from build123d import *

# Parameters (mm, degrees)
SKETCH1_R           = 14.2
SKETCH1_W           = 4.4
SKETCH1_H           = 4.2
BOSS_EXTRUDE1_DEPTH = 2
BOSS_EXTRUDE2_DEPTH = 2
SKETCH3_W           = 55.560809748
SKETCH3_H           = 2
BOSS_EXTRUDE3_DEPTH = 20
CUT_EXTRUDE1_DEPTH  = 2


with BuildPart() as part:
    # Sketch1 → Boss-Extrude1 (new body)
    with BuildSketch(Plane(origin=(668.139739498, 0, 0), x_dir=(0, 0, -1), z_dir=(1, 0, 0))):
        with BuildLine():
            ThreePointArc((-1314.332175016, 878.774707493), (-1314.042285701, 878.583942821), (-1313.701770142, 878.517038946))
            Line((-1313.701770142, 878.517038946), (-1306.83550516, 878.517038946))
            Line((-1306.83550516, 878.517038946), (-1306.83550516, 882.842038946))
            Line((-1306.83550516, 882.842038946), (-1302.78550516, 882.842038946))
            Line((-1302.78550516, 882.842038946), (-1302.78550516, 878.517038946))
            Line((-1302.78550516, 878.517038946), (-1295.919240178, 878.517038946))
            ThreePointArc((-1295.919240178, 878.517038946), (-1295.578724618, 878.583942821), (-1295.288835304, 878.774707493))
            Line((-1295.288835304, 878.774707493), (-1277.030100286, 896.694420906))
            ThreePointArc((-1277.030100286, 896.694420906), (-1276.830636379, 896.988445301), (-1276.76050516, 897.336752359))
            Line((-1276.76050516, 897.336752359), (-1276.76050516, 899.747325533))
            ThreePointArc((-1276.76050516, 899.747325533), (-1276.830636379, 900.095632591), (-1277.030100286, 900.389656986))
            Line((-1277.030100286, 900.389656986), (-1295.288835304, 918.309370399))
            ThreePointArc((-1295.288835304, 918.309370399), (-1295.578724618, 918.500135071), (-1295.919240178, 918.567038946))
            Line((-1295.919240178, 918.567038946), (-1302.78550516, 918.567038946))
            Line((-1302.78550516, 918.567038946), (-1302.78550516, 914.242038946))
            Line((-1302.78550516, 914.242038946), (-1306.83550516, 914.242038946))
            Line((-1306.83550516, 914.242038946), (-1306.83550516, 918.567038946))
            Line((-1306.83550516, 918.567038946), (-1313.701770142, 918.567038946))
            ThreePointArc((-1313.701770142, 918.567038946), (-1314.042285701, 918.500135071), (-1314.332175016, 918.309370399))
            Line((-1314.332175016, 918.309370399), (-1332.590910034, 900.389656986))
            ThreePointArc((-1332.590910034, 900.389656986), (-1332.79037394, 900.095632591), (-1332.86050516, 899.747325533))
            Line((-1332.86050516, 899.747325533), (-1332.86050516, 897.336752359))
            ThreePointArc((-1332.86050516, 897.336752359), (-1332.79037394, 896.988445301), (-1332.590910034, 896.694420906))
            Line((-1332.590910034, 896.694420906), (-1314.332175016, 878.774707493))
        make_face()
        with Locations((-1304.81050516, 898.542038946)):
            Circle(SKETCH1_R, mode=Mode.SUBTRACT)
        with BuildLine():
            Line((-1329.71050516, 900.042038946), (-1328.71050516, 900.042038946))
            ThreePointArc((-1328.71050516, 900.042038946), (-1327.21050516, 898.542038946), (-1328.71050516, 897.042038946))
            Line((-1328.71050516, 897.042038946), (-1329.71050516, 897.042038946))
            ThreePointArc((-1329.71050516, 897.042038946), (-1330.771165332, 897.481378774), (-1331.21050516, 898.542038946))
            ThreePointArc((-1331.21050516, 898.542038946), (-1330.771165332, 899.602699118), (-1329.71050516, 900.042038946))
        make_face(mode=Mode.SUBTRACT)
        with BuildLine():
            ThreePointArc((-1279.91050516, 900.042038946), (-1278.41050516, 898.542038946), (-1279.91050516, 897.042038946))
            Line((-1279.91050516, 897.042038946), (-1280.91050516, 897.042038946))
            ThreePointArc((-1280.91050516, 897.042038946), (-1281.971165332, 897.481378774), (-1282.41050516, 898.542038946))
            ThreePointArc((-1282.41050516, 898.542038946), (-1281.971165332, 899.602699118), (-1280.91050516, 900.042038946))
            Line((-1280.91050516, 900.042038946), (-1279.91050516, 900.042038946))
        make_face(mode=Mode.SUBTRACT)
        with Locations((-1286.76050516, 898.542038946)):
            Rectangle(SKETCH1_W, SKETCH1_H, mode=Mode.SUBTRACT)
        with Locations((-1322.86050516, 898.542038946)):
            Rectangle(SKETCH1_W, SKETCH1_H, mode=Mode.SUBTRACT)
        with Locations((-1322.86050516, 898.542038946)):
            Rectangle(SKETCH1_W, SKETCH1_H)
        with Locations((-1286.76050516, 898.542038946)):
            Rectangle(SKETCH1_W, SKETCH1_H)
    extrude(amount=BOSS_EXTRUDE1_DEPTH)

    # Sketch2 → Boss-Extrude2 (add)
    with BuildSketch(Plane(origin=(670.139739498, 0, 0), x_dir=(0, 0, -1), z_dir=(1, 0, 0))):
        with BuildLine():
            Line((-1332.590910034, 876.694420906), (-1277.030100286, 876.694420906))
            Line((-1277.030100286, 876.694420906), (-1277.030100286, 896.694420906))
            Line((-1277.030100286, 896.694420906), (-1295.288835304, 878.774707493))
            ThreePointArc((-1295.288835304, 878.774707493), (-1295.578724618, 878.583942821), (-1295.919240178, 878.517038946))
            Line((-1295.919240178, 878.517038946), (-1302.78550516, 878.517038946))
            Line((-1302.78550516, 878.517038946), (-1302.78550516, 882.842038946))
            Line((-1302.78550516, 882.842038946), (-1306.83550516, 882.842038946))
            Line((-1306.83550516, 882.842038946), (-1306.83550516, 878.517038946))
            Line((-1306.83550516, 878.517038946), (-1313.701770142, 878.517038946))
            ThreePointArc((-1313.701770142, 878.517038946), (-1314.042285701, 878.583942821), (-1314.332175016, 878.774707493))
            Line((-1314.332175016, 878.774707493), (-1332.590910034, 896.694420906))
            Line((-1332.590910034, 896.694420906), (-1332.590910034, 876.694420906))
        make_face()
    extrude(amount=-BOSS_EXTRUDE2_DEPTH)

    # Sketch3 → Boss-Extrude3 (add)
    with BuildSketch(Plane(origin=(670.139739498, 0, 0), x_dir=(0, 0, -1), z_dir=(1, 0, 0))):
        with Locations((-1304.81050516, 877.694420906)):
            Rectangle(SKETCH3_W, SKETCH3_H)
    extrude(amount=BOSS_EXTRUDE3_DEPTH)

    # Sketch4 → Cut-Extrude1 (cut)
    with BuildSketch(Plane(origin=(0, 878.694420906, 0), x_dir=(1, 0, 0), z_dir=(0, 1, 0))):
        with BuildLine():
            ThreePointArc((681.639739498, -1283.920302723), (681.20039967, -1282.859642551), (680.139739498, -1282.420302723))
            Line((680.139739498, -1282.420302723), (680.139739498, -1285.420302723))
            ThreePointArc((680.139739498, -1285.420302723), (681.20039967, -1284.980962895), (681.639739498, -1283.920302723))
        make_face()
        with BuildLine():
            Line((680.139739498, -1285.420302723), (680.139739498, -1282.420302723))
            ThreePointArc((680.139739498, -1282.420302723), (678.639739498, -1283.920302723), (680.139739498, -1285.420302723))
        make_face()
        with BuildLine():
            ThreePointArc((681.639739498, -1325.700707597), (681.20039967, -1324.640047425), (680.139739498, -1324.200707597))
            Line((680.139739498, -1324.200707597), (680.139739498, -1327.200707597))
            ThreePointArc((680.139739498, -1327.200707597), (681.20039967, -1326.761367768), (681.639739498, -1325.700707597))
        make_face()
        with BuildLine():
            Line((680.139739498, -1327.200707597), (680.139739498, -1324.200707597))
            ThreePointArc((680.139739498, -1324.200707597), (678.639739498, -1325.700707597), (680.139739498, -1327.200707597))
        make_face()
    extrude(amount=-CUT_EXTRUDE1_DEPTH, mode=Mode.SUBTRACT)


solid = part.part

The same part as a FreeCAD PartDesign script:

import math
import FreeCAD as App
import Part
import Sketcher
Q = App.Units.Quantity


def add_polygon(sketch, points):
    """Adds a closed chain of lines whose ends are joined by coincident constraints."""
    first, n = sketch.GeometryCount, len(points)
    for a, b in zip(points, points[1:] + points[:1]):
        sketch.addGeometry(Part.LineSegment(App.Vector(*a, 0), App.Vector(*b, 0)), False)
    for i in range(n):
        sketch.addConstraint(Sketcher.Constraint("Coincident", first + i, 2, first + (i + 1) % n, 1))

doc = App.newDocument("Part")
body = doc.addObject("PartDesign::Body", "Body")

sketch1 = body.newObject("Sketcher::SketchObject", "Sketch")
sketch1.AttachmentSupport = (doc.getObject("YZ_Plane"), [""])
sketch1.MapMode = "FlatFace"
sketch1.AttachmentOffset = App.Placement(App.Vector(0, 0, 668.139739), App.Rotation())
sketch1.addGeometry([
    Part.ArcOfCircle(Part.Circle(App.Vector(879.4, 1313.7, 0), App.Vector(0, 0, 1), 0.9), math.radians(136), math.radians(180)),
    Part.LineSegment(App.Vector(878.5, 1313.7, 0), App.Vector(878.5, 1306.8, 0)),
    Part.LineSegment(App.Vector(878.5, 1306.8, 0), App.Vector(882.8, 1306.8, 0)),
    Part.LineSegment(App.Vector(882.8, 1306.8, 0), App.Vector(882.8, 1302.8, 0)),
    Part.LineSegment(App.Vector(882.8, 1302.8, 0), App.Vector(878.5, 1302.8, 0)),
    Part.LineSegment(App.Vector(878.5, 1302.8, 0), App.Vector(878.5, 1295.9, 0)),
    Part.ArcOfCircle(Part.Circle(App.Vector(879.4, 1295.9, 0), App.Vector(0, 0, 1), 0.9), math.radians(180), math.radians(224)),
    Part.LineSegment(App.Vector(878.8, 1295.3, 0), App.Vector(896.7, 1277, 0)),
    Part.ArcOfCircle(Part.Circle(App.Vector(897.3, 1277.7, 0), App.Vector(0, 0, 1), 0.9), math.radians(-136), math.radians(-90)),
    Part.LineSegment(App.Vector(897.3, 1276.8, 0), App.Vector(899.7, 1276.8, 0)),
    Part.ArcOfCircle(Part.Circle(App.Vector(899.7, 1277.7, 0), App.Vector(0, 0, 1), 0.9), math.radians(-90), math.radians(-44)),
    Part.LineSegment(App.Vector(900.4, 1277, 0), App.Vector(918.3, 1295.3, 0)),
    Part.ArcOfCircle(Part.Circle(App.Vector(917.7, 1295.9, 0), App.Vector(0, 0, 1), 0.9), math.radians(-44), math.radians(0)),
    Part.LineSegment(App.Vector(918.6, 1295.9, 0), App.Vector(918.6, 1302.8, 0)),
    Part.LineSegment(App.Vector(918.6, 1302.8, 0), App.Vector(914.2, 1302.8, 0)),
    Part.LineSegment(App.Vector(914.2, 1302.8, 0), App.Vector(914.2, 1306.8, 0)),
    Part.LineSegment(App.Vector(914.2, 1306.8, 0), App.Vector(918.6, 1306.8, 0)),
    Part.LineSegment(App.Vector(918.6, 1306.8, 0), App.Vector(918.6, 1313.7, 0)),
    Part.ArcOfCircle(Part.Circle(App.Vector(917.7, 1313.7, 0), App.Vector(0, 0, 1), 0.9), math.radians(0), math.radians(44)),
    Part.LineSegment(App.Vector(918.3, 1314.3, 0), App.Vector(900.4, 1332.6, 0)),
    Part.ArcOfCircle(Part.Circle(App.Vector(899.7, 1332, 0), App.Vector(0, 0, 1), 0.9), math.radians(44), math.radians(90)),
    Part.LineSegment(App.Vector(899.7, 1332.9, 0), App.Vector(897.3, 1332.9, 0)),
    Part.ArcOfCircle(Part.Circle(App.Vector(897.3, 1332, 0), App.Vector(0, 0, 1), 0.9), math.radians(90), math.radians(136)),
    Part.LineSegment(App.Vector(896.7, 1332.6, 0), App.Vector(878.8, 1314.3, 0)),
    Part.ArcOfCircle(Part.Circle(App.Vector(898.5, 1329.7, 0), App.Vector(0, 0, 1), 1.5), math.radians(0), math.radians(90)),
    Part.LineSegment(App.Vector(900, 1329.7, 0), App.Vector(900, 1328.7, 0)),
    Part.ArcOfCircle(Part.Circle(App.Vector(898.5, 1328.7, 0), App.Vector(0, 0, 1), 1.5), math.radians(180), math.radians(360)),
    Part.LineSegment(App.Vector(897, 1328.7, 0), App.Vector(897, 1329.7, 0)),
    Part.ArcOfCircle(Part.Circle(App.Vector(898.5, 1329.7, 0), App.Vector(0, 0, 1), 1.5), math.radians(90), math.radians(180)),
    Part.Circle(App.Vector(898.5, 1304.8, 0), App.Vector(0, 0, 1), 14.2),
    Part.LineSegment(App.Vector(900, 1280.9, 0), App.Vector(900, 1279.9, 0)),
    Part.ArcOfCircle(Part.Circle(App.Vector(898.5, 1279.9, 0), App.Vector(0, 0, 1), 1.5), math.radians(180), math.radians(360)),
    Part.LineSegment(App.Vector(897, 1279.9, 0), App.Vector(897, 1280.9, 0)),
    Part.ArcOfCircle(Part.Circle(App.Vector(898.5, 1280.9, 0), App.Vector(0, 0, 1), 1.5), math.radians(90), math.radians(180)),
    Part.ArcOfCircle(Part.Circle(App.Vector(898.5, 1280.9, 0), App.Vector(0, 0, 1), 1.5), math.radians(0), math.radians(90)),
], False)
sketch1.addConstraint([
    Sketcher.Constraint("Tangent", 0, 2, 1, 1),
    Sketcher.Constraint("Coincident", 1, 2, 2, 1),
    Sketcher.Constraint("Coincident", 2, 2, 3, 1),
    Sketcher.Constraint("Coincident", 3, 2, 4, 1),
    Sketcher.Constraint("Coincident", 4, 2, 5, 1),
    Sketcher.Constraint("Tangent", 5, 2, 6, 1),
    Sketcher.Constraint("Tangent", 6, 2, 7, 1),
    Sketcher.Constraint("Tangent", 7, 2, 8, 1),
    Sketcher.Constraint("Tangent", 8, 2, 9, 1),
    Sketcher.Constraint("Tangent", 9, 2, 10, 1),
    Sketcher.Constraint("Tangent", 10, 2, 11, 1),
    Sketcher.Constraint("Tangent", 11, 2, 12, 1),
    Sketcher.Constraint("Tangent", 12, 2, 13, 1),
    Sketcher.Constraint("Coincident", 13, 2, 14, 1),
    Sketcher.Constraint("Coincident", 14, 2, 15, 1),
    Sketcher.Constraint("Coincident", 15, 2, 16, 1),
    Sketcher.Constraint("Coincident", 16, 2, 17, 1),
    Sketcher.Constraint("Tangent", 17, 2, 18, 1),
    Sketcher.Constraint("Tangent", 18, 2, 19, 1),
    Sketcher.Constraint("Tangent", 19, 2, 20, 1),
    Sketcher.Constraint("Tangent", 20, 2, 21, 1),
    Sketcher.Constraint("Tangent", 21, 2, 22, 1),
    Sketcher.Constraint("Tangent", 22, 2, 23, 1),
    Sketcher.Constraint("Tangent", 23, 2, 0, 1),
    Sketcher.Constraint("Tangent", 24, 1, 25, 1),
    Sketcher.Constraint("Tangent", 25, 2, 26, 2),
    Sketcher.Constraint("Tangent", 26, 1, 27, 1),
    Sketcher.Constraint("Tangent", 27, 2, 28, 2),
    Sketcher.Constraint("Tangent", 28, 1, 24, 2),
    Sketcher.Constraint("Tangent", 30, 2, 31, 2),
    Sketcher.Constraint("Tangent", 31, 1, 32, 1),
    Sketcher.Constraint("Tangent", 32, 2, 33, 2),
    Sketcher.Constraint("Tangent", 33, 1, 34, 2),
    Sketcher.Constraint("Tangent", 34, 1, 30, 1),
    Sketcher.Constraint("Vertical", 1),
    Sketcher.Constraint("Horizontal", 2),
    Sketcher.Constraint("Vertical", 3),
    Sketcher.Constraint("Horizontal", 4),
    Sketcher.Constraint("Vertical", 5),
    Sketcher.Constraint("Horizontal", 9),
    Sketcher.Constraint("Vertical", 13),
    Sketcher.Constraint("Horizontal", 14),
    Sketcher.Constraint("Vertical", 15),
    Sketcher.Constraint("Horizontal", 16),
    Sketcher.Constraint("Vertical", 17),
    Sketcher.Constraint("Horizontal", 21),
    Sketcher.Constraint("Vertical", 25),
    Sketcher.Constraint("Vertical", 27),
    Sketcher.Constraint("Vertical", 30),
    Sketcher.Constraint("Vertical", 32),
    Sketcher.Constraint("Equal", 0, 6),
    Sketcher.Constraint("Equal", 6, 8),
    Sketcher.Constraint("Equal", 8, 10),
    Sketcher.Constraint("Equal", 10, 12),
    Sketcher.Constraint("Equal", 12, 18),
    Sketcher.Constraint("Equal", 18, 20),
    Sketcher.Constraint("Equal", 20, 22),
    Sketcher.Constraint("Equal", 24, 26),
    Sketcher.Constraint("Equal", 28, 31),
    Sketcher.Constraint("Equal", 31, 33),
    Sketcher.Constraint("Parallel", 7, 19),
    Sketcher.Constraint("Parallel", 11, 23),
    Sketcher.Constraint("Horizontal", 6, 3, 12, 3),
    Sketcher.Constraint("Horizontal", 0, 3, 18, 3),
    Sketcher.Constraint("Horizontal", 7, 2, 10, 2),
    Sketcher.Constraint("Horizontal", 4, 2, 13, 2),
    Sketcher.Constraint("Horizontal", 2, 2, 15, 2),
    Sketcher.Constraint("Vertical", 0, 3, 6, 3),
    Sketcher.Constraint("Vertical", 12, 3, 18, 3),
    Sketcher.Constraint("Vertical", 10, 3, 20, 3),
    Sketcher.Constraint("Vertical", 28, 3, 29, 3),
    Sketcher.Constraint("Vertical", 29, 3, 31, 3),
    Sketcher.Constraint("Vertical", 34, 3, 28, 1),
    Sketcher.Constraint("Vertical", 28, 1, 33, 1),
    Sketcher.Constraint("Equal", 4, 14),
    Sketcher.Constraint("Equal", 1, 5),
    Sketcher.Constraint("Equal", 27, 30),
    Sketcher.Constraint("Diameter", 29, Q("28.4 mm")),
    Sketcher.Constraint("Radius", 0, Q("0.9 mm")),
    Sketcher.Constraint("Radius", 24, Q("1.5 mm")),
    Sketcher.Constraint("DistanceY", 25, 2, 25, 1, Q("1 mm")),
    Sketcher.Constraint("DistanceY", 3, 2, 3, 1, Q("4.05 mm")),
    Sketcher.Constraint("DistanceY", 10, 3, 20, 3, Q("54.3 mm")),
    Sketcher.Constraint("DistanceY", 29, 3, 26, 3, Q("23.9 mm")),
    Sketcher.Constraint("DistanceY", 31, 3, 29, 3, Q("24.9 mm")),
    Sketcher.Constraint("DistanceX", 2, 2, 29, 3, Q("15.7 mm")),
    Sketcher.Constraint("DistanceX", 2, 1, 2, 2, Q("4.325 mm")),
    Sketcher.Constraint("DistanceX", 6, 3, 12, 3, Q("38.25 mm")),
    Sketcher.Constraint("DistanceY", 24, 3, 20, 3, Q("2.25 mm")),
    Sketcher.Constraint("DistanceY", -1, 1, 7, 2, Q("1277.0301 mm")),
    Sketcher.Constraint("Distance", 7, Q("25.583149 mm")),
    Sketcher.Constraint("DistanceX", 9, 1, 9, 2, Q("2.410573 mm")),
    Sketcher.Constraint("DistanceX", -1, 1, 0, 3, Q("879.417039 mm")),
])
pad1 = body.newObject("PartDesign::Pad", "Pad")
pad1.Profile = sketch1
pad1.Length = 2

sketch2 = body.newObject("Sketcher::SketchObject", "Sketch001")
sketch2.AttachmentSupport = (doc.getObject("YZ_Plane"), [""])
sketch2.MapMode = "FlatFace"
sketch2.AttachmentOffset = App.Placement(App.Vector(0, 0, 670.139739), App.Rotation())
sketch2.addGeometry([
    Part.LineSegment(App.Vector(876.7, 1332.6, 0), App.Vector(876.7, 1277, 0)),
    Part.LineSegment(App.Vector(876.7, 1277, 0), App.Vector(896.7, 1277, 0)),
    Part.LineSegment(App.Vector(896.7, 1277, 0), App.Vector(878.8, 1295.3, 0)),
    Part.ArcOfCircle(Part.Circle(App.Vector(879.4, 1295.9, 0), App.Vector(0, 0, 1), 0.9), math.radians(180), math.radians(224)),
    Part.LineSegment(App.Vector(878.5, 1295.9, 0), App.Vector(878.5, 1302.8, 0)),
    Part.LineSegment(App.Vector(878.5, 1302.8, 0), App.Vector(882.8, 1302.8, 0)),
    Part.LineSegment(App.Vector(882.8, 1302.8, 0), App.Vector(882.8, 1306.8, 0)),
    Part.LineSegment(App.Vector(882.8, 1306.8, 0), App.Vector(878.5, 1306.8, 0)),
    Part.LineSegment(App.Vector(878.5, 1306.8, 0), App.Vector(878.5, 1313.7, 0)),
    Part.ArcOfCircle(Part.Circle(App.Vector(879.4, 1313.7, 0), App.Vector(0, 0, 1), 0.9), math.radians(136), math.radians(180)),
    Part.LineSegment(App.Vector(878.8, 1314.3, 0), App.Vector(896.7, 1332.6, 0)),
    Part.LineSegment(App.Vector(896.7, 1332.6, 0), App.Vector(876.7, 1332.6, 0)),
], False)
sketch2.addConstraint([
    Sketcher.Constraint("Coincident", 0, 2, 1, 1),
    Sketcher.Constraint("Coincident", 1, 2, 2, 1),
    Sketcher.Constraint("Tangent", 2, 2, 3, 2),
    Sketcher.Constraint("Tangent", 3, 1, 4, 1),
    Sketcher.Constraint("Coincident", 4, 2, 5, 1),
    Sketcher.Constraint("Coincident", 5, 2, 6, 1),
    Sketcher.Constraint("Coincident", 6, 2, 7, 1),
    Sketcher.Constraint("Coincident", 7, 2, 8, 1),
    Sketcher.Constraint("Tangent", 8, 2, 9, 2),
    Sketcher.Constraint("Tangent", 9, 1, 10, 1),
    Sketcher.Constraint("Coincident", 10, 2, 11, 1),
    Sketcher.Constraint("Coincident", 11, 2, 0, 1),
    Sketcher.Constraint("Vertical", 0),
    Sketcher.Constraint("Horizontal", 1),
    Sketcher.Constraint("Vertical", 4),
    Sketcher.Constraint("Horizontal", 5),
    Sketcher.Constraint("Vertical", 6),
    Sketcher.Constraint("Horizontal", 7),
    Sketcher.Constraint("Vertical", 8),
    Sketcher.Constraint("Horizontal", 11),
    Sketcher.Constraint("Equal", 3, 9),
    Sketcher.Constraint("Vertical", 3, 3, 9, 3),
    Sketcher.Constraint("Vertical", 2, 2, 9, 1),
    Sketcher.Constraint("Vertical", 1, 2, 10, 2),
    Sketcher.Constraint("Equal", 4, 8),
    Sketcher.Constraint("Radius", 3, Q("0.9 mm")),
    Sketcher.Constraint("DistanceX", 1, 1, 1, 2, Q("20 mm")),
    Sketcher.Constraint("DistanceY", 6, 1, 6, 2, Q("4.05 mm")),
    Sketcher.Constraint("DistanceX", 5, 1, 5, 2, Q("4.325 mm")),
    Sketcher.Constraint("DistanceY", 0, 2, 0, 1, Q("55.56081 mm")),
    Sketcher.Constraint("DistanceY", -1, 1, 0, 2, Q("1277.0301 mm")),
    Sketcher.Constraint("Distance", 2, Q("25.583149 mm")),
    Sketcher.Constraint("DistanceY", 4, 1, 4, 2, Q("6.866265 mm")),
    Sketcher.Constraint("DistanceX", -1, 1, 3, 3, Q("879.417039 mm")),
])
pad2 = body.newObject("PartDesign::Pad", "Pad001")
pad2.Profile = sketch2
pad2.Length = 2
pad2.Reversed = True

sketch3 = body.newObject("Sketcher::SketchObject", "Sketch002")
sketch3.AttachmentSupport = (doc.getObject("YZ_Plane"), [""])
sketch3.MapMode = "FlatFace"
sketch3.AttachmentOffset = App.Placement(App.Vector(0, 0, 670.139739), App.Rotation())
add_polygon(sketch3, [(878.7, 1332.6), (876.7, 1332.6), (876.7, 1277), (878.7, 1277)])
sketch3.addConstraint([
    Sketcher.Constraint("Horizontal", 0),
    Sketcher.Constraint("Vertical", 1),
    Sketcher.Constraint("Horizontal", 2),
    Sketcher.Constraint("Vertical", 3),
    Sketcher.Constraint("DistanceX", 0, 2, 0, 1, Q("2 mm")),
    Sketcher.Constraint("DistanceY", 1, 2, 1, 1, Q("55.56081 mm")),
    Sketcher.Constraint("DistanceY", -1, 1, 1, 2, Q("1277.0301 mm")),
    Sketcher.Constraint("DistanceX", -1, 1, 0, 2, Q("876.694421 mm")),
])
pad3 = body.newObject("PartDesign::Pad", "Pad002")
pad3.Profile = sketch3
pad3.Length = 20

sketch4 = body.newObject("Sketcher::SketchObject", "Sketch003")
sketch4.AttachmentSupport = (doc.getObject("XZ_Plane"), [""])
sketch4.MapMode = "FlatFace"
sketch4.AttachmentOffset = App.Placement(App.Vector(0, 0, -878.694421), App.Rotation())
sketch4.addGeometry([
    Part.ArcOfCircle(Part.Circle(App.Vector(680.1, 1283.9, 0), App.Vector(0, 0, 1), 1.5), math.radians(-90), math.radians(0)),
    Part.ArcOfCircle(Part.Circle(App.Vector(680.1, 1283.9, 0), App.Vector(0, 0, 1), 1.5), math.radians(90), math.radians(270)),
    Part.ArcOfCircle(Part.Circle(App.Vector(680.1, 1283.9, 0), App.Vector(0, 0, 1), 1.5), math.radians(0), math.radians(90)),
    Part.ArcOfCircle(Part.Circle(App.Vector(680.1, 1325.7, 0), App.Vector(0, 0, 1), 1.5), math.radians(-90), math.radians(0)),
    Part.ArcOfCircle(Part.Circle(App.Vector(680.1, 1325.7, 0), App.Vector(0, 0, 1), 1.5), math.radians(90), math.radians(270)),
    Part.ArcOfCircle(Part.Circle(App.Vector(680.1, 1325.7, 0), App.Vector(0, 0, 1), 1.5), math.radians(0), math.radians(90)),
], False)
sketch4.addConstraint([
    Sketcher.Constraint("Tangent", 0, 1, 1, 2),
    Sketcher.Constraint("Tangent", 1, 1, 2, 2),
    Sketcher.Constraint("Tangent", 2, 1, 0, 2),
    Sketcher.Constraint("Tangent", 3, 1, 4, 2),
    Sketcher.Constraint("Tangent", 4, 1, 5, 2),
    Sketcher.Constraint("Tangent", 5, 1, 3, 2),
    Sketcher.Constraint("Equal", 2, 3),
    Sketcher.Constraint("Horizontal", 1, 3, 2, 1),
    Sketcher.Constraint("Horizontal", 4, 3, 5, 1),
    Sketcher.Constraint("Vertical", 2, 3, 3, 3),
    Sketcher.Constraint("Vertical", 5, 3, 0, 1),
    Sketcher.Constraint("Vertical", 0, 1, 1, 1),
    Sketcher.Constraint("Vertical", 1, 1, 3, 1),
    Sketcher.Constraint("Vertical", 3, 1, 4, 1),
    Sketcher.Constraint("Radius", 0, Q("1.5 mm")),
    Sketcher.Constraint("DistanceX", -1, 1, 0, 3, Q("680.139739 mm")),
    Sketcher.Constraint("DistanceY", -1, 1, 0, 3, Q("1283.920303 mm")),
    Sketcher.Constraint("DistanceY", -1, 1, 3, 3, Q("1325.700708 mm")),
])
pocket1 = body.newObject("PartDesign::Pocket", "Pocket")
pocket1.Profile = sketch4
pocket1.Length = 2
pocket1.Reversed = True

doc.recompute()
